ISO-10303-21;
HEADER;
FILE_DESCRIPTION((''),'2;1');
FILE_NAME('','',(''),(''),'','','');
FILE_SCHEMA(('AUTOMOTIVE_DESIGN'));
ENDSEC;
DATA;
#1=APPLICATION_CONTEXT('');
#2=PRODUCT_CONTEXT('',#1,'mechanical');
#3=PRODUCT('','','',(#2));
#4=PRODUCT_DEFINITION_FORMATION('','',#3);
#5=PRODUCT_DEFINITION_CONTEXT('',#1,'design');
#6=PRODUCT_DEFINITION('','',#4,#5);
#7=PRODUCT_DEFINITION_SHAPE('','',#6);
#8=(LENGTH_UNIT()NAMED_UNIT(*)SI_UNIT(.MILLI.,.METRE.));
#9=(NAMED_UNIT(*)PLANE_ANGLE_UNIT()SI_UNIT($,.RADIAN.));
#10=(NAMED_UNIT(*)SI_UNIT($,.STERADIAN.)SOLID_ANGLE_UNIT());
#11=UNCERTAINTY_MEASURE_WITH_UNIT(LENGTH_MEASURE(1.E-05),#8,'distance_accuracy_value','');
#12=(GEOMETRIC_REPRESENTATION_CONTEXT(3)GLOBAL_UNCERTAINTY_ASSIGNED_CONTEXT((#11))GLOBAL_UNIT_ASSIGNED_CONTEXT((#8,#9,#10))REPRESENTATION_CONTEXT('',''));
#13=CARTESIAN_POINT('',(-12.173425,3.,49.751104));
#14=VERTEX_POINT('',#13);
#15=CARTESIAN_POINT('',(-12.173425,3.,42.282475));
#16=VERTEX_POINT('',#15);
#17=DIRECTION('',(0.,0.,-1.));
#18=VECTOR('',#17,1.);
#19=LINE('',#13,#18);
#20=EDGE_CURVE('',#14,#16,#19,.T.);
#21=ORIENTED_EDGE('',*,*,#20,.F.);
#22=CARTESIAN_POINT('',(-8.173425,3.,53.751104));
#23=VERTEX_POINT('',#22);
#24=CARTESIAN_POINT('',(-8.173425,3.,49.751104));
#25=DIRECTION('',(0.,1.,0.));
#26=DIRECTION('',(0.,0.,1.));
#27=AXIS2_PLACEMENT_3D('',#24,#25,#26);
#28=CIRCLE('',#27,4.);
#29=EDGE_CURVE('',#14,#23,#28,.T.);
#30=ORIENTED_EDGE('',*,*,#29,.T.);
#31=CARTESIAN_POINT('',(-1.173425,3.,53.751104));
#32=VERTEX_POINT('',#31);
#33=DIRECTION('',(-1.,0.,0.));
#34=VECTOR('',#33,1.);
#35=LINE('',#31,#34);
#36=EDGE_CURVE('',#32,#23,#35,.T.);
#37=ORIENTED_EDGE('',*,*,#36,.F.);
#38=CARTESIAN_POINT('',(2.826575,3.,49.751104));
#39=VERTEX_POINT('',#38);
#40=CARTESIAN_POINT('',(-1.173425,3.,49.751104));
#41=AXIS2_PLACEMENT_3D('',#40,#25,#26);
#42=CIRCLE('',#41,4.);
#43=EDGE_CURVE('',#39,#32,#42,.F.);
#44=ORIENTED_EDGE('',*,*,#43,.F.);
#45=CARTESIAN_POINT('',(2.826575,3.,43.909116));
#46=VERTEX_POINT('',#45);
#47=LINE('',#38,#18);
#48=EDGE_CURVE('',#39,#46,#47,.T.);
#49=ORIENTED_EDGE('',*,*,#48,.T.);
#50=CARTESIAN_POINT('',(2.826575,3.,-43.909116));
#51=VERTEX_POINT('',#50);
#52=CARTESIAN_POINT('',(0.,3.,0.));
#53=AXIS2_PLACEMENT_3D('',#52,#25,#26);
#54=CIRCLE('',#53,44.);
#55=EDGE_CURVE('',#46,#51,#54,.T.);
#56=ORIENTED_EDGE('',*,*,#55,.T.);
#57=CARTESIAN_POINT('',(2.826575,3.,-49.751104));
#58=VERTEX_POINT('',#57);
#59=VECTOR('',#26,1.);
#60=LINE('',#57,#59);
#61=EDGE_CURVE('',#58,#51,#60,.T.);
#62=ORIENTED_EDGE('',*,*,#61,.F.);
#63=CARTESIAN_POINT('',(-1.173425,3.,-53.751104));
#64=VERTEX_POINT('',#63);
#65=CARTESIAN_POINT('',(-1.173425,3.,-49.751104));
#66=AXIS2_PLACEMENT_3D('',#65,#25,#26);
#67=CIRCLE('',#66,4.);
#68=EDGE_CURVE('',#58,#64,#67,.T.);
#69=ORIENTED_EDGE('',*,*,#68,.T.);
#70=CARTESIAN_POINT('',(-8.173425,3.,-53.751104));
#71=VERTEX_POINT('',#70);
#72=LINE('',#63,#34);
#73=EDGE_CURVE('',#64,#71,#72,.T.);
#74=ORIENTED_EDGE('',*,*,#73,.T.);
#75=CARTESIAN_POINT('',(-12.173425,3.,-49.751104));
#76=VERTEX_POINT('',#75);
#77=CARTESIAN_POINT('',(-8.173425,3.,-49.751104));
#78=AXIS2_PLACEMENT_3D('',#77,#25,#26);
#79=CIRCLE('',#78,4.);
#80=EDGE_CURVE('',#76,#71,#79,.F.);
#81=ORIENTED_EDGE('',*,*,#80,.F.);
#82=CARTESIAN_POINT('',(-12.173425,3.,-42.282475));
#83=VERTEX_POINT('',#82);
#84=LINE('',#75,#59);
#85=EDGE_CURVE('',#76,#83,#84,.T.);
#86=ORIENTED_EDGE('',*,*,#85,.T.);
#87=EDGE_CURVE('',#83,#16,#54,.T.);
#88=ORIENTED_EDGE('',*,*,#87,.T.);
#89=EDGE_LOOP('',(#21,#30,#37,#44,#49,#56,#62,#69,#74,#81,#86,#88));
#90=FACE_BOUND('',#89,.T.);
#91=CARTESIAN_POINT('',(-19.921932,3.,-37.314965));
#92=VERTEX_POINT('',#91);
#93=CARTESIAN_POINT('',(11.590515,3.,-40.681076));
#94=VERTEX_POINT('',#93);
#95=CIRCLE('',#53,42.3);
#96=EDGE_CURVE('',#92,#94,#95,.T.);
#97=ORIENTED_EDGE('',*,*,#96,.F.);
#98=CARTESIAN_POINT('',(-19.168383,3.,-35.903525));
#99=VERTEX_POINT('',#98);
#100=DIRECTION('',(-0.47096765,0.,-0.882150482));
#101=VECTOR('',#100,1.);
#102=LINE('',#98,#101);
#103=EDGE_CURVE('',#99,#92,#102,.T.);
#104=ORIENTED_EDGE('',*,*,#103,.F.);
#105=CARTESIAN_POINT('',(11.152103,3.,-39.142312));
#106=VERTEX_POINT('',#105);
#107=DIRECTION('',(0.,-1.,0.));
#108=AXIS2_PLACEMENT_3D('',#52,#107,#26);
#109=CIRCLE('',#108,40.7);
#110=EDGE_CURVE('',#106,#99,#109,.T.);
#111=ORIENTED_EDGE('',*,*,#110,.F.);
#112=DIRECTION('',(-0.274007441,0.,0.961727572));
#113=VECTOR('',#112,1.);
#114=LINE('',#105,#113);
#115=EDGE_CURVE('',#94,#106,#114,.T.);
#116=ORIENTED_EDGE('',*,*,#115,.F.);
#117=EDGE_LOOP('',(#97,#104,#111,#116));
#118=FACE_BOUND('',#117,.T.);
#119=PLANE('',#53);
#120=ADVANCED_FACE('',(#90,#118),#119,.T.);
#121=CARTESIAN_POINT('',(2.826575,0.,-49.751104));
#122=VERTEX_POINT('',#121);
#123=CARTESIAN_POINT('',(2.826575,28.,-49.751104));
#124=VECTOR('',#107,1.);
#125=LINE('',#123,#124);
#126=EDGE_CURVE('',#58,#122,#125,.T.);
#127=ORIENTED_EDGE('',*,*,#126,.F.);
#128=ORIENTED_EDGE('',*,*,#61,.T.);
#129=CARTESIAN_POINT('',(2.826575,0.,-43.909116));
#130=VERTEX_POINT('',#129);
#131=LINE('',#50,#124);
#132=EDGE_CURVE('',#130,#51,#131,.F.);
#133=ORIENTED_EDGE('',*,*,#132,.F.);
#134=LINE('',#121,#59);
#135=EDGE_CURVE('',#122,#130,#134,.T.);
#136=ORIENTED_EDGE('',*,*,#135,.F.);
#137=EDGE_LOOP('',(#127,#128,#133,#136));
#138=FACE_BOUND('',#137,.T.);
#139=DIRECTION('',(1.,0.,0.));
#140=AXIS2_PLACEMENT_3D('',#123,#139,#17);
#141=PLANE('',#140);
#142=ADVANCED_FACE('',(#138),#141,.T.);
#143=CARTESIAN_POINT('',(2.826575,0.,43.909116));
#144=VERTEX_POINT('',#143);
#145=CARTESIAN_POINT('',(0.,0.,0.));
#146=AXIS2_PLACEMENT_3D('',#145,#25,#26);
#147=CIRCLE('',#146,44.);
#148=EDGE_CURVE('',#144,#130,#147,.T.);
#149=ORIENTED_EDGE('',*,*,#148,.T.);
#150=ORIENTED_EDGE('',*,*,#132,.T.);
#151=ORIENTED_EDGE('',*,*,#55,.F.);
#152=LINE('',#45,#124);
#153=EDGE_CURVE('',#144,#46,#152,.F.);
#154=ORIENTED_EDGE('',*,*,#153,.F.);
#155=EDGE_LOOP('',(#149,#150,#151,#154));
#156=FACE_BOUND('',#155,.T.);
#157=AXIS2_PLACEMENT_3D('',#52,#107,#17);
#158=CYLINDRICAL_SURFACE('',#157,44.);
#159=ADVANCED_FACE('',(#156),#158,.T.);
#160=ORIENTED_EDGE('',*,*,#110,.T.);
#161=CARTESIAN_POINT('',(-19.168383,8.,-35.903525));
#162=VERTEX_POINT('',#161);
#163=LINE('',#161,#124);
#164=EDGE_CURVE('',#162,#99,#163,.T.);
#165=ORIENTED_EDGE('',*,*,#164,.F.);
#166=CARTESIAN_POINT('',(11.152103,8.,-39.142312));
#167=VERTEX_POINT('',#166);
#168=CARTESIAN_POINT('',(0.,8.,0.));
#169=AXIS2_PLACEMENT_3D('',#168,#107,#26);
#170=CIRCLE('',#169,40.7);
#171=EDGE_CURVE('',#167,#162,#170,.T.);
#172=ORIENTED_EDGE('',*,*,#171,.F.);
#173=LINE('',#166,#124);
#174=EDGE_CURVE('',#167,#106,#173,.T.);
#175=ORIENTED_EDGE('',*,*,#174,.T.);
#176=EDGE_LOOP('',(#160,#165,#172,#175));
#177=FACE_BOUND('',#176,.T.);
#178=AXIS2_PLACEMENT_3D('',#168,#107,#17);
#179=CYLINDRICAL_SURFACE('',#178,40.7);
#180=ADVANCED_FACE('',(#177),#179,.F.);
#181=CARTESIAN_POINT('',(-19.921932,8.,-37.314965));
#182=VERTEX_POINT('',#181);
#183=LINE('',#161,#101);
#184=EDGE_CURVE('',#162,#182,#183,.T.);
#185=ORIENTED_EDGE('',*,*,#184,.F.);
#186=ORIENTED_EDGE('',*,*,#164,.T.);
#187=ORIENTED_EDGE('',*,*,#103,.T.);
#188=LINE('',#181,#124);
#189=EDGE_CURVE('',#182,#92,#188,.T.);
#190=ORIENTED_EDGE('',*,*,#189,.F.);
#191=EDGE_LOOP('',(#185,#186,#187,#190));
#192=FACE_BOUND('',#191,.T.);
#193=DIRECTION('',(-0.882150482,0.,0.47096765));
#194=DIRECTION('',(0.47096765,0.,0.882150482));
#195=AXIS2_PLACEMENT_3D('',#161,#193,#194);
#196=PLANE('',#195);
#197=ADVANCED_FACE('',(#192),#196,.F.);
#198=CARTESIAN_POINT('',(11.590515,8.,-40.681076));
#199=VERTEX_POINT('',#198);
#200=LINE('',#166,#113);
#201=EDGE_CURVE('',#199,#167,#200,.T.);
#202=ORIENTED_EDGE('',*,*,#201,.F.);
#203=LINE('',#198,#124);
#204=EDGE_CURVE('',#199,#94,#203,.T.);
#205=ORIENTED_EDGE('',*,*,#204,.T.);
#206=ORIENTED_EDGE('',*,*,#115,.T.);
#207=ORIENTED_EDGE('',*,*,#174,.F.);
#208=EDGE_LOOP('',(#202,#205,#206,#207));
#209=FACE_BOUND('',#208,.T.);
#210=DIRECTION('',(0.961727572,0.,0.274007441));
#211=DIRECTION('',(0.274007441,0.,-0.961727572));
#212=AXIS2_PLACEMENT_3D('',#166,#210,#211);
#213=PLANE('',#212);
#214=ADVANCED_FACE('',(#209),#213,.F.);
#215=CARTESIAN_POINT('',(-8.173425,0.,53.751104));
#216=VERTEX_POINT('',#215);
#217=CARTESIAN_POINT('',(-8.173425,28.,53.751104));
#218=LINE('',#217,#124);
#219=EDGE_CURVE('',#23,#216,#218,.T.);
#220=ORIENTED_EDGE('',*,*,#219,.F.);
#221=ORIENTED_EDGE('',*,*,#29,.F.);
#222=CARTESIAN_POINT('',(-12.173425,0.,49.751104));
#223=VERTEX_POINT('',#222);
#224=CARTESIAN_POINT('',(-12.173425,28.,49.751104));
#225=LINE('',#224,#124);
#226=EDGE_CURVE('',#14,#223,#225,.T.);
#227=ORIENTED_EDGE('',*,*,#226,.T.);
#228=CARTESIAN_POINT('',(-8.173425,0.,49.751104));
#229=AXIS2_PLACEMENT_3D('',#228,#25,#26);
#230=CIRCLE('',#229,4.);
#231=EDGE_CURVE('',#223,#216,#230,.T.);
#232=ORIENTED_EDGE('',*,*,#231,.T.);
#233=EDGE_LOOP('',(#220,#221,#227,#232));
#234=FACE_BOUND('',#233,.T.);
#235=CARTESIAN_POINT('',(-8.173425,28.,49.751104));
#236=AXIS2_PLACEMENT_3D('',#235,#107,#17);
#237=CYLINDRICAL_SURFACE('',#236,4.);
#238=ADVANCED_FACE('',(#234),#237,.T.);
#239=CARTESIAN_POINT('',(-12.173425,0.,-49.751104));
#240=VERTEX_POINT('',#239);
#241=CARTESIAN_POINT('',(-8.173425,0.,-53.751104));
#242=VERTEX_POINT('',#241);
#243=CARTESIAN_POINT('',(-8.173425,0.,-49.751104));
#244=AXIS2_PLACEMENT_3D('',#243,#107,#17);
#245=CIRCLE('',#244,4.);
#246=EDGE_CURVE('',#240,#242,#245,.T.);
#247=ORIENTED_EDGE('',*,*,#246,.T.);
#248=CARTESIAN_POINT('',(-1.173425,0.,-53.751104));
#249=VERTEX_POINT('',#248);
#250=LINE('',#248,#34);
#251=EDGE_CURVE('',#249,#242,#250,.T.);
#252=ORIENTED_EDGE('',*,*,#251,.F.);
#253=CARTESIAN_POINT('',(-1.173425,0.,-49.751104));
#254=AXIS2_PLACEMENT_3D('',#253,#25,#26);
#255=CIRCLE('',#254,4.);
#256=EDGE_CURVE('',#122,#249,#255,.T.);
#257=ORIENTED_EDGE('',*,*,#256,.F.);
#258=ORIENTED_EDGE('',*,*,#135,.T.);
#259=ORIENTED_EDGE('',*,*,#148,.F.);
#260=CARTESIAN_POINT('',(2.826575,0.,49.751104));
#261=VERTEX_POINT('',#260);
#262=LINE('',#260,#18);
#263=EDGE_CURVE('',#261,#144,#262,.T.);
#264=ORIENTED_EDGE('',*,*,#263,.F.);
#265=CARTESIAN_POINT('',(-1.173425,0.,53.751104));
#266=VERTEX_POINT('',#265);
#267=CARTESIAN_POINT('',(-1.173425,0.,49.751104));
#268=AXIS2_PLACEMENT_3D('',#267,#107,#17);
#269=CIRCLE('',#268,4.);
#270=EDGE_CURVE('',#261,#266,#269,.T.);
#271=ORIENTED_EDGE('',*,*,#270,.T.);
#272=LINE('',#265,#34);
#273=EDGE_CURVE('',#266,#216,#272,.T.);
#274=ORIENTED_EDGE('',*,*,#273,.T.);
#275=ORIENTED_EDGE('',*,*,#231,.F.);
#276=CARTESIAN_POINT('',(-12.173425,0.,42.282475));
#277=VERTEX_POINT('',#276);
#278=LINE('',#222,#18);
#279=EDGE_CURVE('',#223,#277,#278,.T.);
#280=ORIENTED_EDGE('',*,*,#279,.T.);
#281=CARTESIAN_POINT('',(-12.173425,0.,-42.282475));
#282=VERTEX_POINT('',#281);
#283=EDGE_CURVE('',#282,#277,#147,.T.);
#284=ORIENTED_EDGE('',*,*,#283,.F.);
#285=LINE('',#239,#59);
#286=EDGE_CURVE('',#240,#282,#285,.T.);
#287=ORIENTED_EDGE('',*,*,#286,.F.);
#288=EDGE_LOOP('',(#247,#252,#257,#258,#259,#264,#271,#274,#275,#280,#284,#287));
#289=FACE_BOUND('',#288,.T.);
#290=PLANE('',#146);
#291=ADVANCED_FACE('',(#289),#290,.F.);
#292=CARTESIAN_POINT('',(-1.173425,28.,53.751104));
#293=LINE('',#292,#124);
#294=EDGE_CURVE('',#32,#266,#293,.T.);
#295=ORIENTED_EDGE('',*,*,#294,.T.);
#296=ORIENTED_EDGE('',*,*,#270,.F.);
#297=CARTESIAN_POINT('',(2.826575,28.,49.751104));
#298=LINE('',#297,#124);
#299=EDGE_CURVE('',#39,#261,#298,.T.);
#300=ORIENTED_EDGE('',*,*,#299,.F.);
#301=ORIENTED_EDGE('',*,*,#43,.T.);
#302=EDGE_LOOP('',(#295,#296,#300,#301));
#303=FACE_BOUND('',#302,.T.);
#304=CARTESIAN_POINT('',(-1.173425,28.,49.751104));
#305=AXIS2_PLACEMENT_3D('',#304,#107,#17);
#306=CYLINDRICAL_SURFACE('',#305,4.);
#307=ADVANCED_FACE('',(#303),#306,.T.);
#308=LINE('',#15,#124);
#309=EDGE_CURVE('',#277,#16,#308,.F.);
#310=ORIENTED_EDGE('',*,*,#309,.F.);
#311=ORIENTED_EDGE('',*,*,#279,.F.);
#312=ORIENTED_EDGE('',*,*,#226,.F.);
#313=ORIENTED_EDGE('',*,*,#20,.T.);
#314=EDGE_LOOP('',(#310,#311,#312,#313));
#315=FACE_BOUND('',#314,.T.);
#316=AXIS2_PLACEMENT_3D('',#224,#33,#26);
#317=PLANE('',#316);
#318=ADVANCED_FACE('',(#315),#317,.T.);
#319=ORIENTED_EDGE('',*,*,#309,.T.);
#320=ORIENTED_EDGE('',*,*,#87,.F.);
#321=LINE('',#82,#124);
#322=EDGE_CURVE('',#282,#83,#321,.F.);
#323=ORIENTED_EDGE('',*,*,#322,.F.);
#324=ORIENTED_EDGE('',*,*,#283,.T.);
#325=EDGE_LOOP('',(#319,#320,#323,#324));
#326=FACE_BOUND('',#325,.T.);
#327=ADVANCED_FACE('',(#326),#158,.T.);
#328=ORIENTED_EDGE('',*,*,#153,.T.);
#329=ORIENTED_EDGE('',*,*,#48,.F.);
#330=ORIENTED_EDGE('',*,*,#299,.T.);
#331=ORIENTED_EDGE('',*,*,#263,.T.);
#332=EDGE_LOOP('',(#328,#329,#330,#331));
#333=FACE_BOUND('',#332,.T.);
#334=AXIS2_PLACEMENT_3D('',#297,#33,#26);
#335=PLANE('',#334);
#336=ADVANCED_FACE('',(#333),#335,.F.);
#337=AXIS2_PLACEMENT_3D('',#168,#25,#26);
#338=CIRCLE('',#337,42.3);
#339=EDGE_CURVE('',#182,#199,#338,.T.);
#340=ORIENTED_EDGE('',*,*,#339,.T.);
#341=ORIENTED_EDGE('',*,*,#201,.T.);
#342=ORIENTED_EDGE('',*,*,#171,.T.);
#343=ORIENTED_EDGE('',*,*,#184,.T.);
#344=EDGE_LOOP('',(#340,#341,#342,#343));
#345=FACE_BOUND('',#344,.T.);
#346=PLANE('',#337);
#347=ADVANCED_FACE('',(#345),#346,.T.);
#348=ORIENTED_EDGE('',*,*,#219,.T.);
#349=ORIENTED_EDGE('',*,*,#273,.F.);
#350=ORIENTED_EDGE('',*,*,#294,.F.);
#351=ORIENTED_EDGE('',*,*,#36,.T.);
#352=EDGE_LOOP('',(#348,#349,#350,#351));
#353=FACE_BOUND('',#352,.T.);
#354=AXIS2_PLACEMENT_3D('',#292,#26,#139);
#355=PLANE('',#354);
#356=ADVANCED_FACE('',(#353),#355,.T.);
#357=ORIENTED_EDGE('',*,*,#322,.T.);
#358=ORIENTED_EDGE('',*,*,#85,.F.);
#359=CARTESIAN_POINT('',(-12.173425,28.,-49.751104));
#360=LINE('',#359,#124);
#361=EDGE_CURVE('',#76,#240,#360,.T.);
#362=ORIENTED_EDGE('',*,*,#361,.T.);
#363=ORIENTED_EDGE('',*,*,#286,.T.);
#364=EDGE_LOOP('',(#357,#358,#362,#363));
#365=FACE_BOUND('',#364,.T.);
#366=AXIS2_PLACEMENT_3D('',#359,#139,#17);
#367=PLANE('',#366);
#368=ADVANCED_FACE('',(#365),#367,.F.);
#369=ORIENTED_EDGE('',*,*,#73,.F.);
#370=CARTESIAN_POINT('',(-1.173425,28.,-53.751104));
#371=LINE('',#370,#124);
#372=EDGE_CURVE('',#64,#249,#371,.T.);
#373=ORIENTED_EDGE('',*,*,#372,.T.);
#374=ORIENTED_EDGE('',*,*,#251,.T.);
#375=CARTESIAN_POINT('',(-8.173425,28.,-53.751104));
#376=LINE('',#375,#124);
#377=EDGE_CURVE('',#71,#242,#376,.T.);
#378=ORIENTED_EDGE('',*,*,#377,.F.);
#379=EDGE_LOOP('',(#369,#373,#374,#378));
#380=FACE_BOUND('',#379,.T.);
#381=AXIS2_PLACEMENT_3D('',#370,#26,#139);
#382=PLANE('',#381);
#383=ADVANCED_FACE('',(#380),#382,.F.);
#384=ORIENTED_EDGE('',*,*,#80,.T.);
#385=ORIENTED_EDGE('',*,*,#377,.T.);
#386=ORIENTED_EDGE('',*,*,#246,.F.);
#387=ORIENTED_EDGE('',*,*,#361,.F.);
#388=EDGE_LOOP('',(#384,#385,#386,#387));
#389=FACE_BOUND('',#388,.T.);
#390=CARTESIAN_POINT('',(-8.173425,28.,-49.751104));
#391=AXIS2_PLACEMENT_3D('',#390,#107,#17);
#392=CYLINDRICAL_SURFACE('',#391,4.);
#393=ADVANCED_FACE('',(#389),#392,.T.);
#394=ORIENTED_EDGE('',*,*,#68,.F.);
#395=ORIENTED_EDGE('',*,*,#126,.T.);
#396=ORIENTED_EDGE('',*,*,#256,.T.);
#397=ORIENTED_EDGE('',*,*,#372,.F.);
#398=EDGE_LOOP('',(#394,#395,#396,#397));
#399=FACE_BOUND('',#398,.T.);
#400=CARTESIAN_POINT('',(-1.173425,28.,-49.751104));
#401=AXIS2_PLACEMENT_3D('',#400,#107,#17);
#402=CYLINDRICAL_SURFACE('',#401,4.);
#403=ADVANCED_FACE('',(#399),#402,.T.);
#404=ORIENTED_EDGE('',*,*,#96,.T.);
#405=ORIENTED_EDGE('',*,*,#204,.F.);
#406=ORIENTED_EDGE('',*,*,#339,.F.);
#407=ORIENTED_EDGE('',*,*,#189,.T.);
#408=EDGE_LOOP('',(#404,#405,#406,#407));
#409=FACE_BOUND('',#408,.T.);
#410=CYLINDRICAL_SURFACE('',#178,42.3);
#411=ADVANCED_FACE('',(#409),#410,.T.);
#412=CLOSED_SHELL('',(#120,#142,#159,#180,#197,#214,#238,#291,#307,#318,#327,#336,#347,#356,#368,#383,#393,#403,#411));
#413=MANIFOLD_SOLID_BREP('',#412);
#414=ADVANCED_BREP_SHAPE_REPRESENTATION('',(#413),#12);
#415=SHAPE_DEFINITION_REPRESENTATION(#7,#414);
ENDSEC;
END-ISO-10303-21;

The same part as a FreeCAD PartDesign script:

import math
import FreeCAD as App
import Part
import Sketcher

V = App.Vector

doc = App.newDocument("Part")
body = doc.addObject("PartDesign::Body", "Body")

# Sketch on XZ plane
sketch1 = doc.addObject("Sketcher::SketchObject", "Sketch")
body.addObject(sketch1)
sketch1.AttachmentSupport = (doc.XZ_Plane, [""])
sketch1.MapMode = "FlatFace"
sketch1.addGeometry(Part.Circle(V(0, 0, 0), V(0, 0, 1), 44), False)
sketch1.addConstraint([
    Sketcher.Constraint("Coincident", 0, 3, -1, 1),
    Sketcher.Constraint("Diameter", 0, 88.0),
])
pad1 = doc.addObject("PartDesign::Pad", "Pad")
body.addObject(pad1)
pad1.Profile = sketch1
pad1.Length = 3
pad1.Reversed = True

# Sketch on XZ plane
sketch2 = doc.addObject("Sketcher::SketchObject", "Sketch001")
body.addObject(sketch2)
sketch2.AttachmentSupport = (doc.XZ_Plane, [""])
sketch2.MapMode = "FlatFace"
sketch2.AttachmentOffset = App.Placement(V(0, 0, -3), App.Rotation())
sketch2.addGeometry([
    Part.LineSegment(V(-19.168383, -35.903525, 0), V(-19.921932, -37.314965, 0)),
    Part.ArcOfCircle(Part.Circle(V(0, 0, 0), V(0, 0, 1), 42.3), math.radians(-74.097127), math.radians(241.902873)),
    Part.LineSegment(V(11.590515, -40.681076, 0), V(11.152103, -39.142312, 0)),
    Part.ArcOfCircle(Part.Circle(V(0, 0, 0), V(0, 0, 1), 40.7), math.radians(-74.097127), math.radians(241.902873)),
], False)
sketch2.addConstraint([
    Sketcher.Constraint("Coincident", 0, 2, 1, 2),
    Sketcher.Constraint("Coincident", 1, 1, 2, 1),
    Sketcher.Constraint("Coincident", 2, 2, 3, 1),
    Sketcher.Constraint("Coincident", 3, 2, 0, 1),
    Sketcher.Constraint("Coincident", 1, 3, -1, 1),
    Sketcher.Constraint("Coincident", 3, 3, -1, 1),
    Sketcher.Constraint("Radius", 1, 42.3),
    Sketcher.Constraint("Radius", 3, 40.7),
    Sketcher.Constraint("DistanceX", 3, 2, 1, 1, 30.758898),
    Sketcher.Constraint("DistanceX", 0, 2, -1, 1, 19.921932),
    Sketcher.Constraint("DistanceY", 1, 1, 0, 2, 3.366111),
    Sketcher.Constraint("DistanceX", 2, 2, 1, 1, 0.438412),
])
pad2 = doc.addObject("PartDesign::Pad", "Pad001")
body.addObject(pad2)
pad2.Profile = sketch2
pad2.Length = 5
pad2.Reversed = True

# Sketch on XZ plane
sketch3 = doc.addObject("Sketcher::SketchObject", "Sketch002")
body.addObject(sketch3)
sketch3.AttachmentSupport = (doc.XZ_Plane, [""])
sketch3.MapMode = "FlatFace"
sketch3.addGeometry([
    Part.LineSegment(V(-8.173425, -53.751104, 0), V(-1.173425, -53.751104, 0)),  # 0
    Part.ArcOfCircle(Part.Circle(V(-1.173425, -49.751104, 0), V(0, 0, 1), 4), math.radians(-90), math.radians(0)),  # 1
    Part.LineSegment(V(2.826575, -49.751104, 0), V(2.826575, -33.751104, 0)),  # 2
    Part.LineSegment(V(2.826575, -33.751104, 0), V(-12.173425, -33.751104, 0)),  # 3
    Part.LineSegment(V(-12.173425, -33.751104, 0), V(-12.173425, -49.751104, 0)),  # 4
    Part.ArcOfCircle(Part.Circle(V(-8.173425, -49.751104, 0), V(0, 0, 1), 4), math.radians(180), math.radians(270)),  # 5
], False)
sketch3.addConstraint([
    Sketcher.Constraint("Tangent", 0, 2, 1, 1),
    Sketcher.Constraint("Tangent", 1, 2, 2, 1),
    Sketcher.Constraint("Coincident", 2, 2, 3, 1),
    Sketcher.Constraint("Coincident", 3, 2, 4, 1),
    Sketcher.Constraint("Tangent", 4, 2, 5, 1),
    Sketcher.Constraint("Tangent", 5, 2, 0, 1),
    Sketcher.Constraint("Horizontal", 0),
    Sketcher.Constraint("Vertical", 2),
    Sketcher.Constraint("Horizontal", 3),
    Sketcher.Constraint("Vertical", 4),
    Sketcher.Constraint("Equal", 1, 5),
    Sketcher.Constraint("Radius", 1, 4.0),
    Sketcher.Constraint("DistanceX", 0, 1, 0, 2, 7.0),
    Sketcher.Constraint("DistanceY", 2, 1, 2, 2, 16.0),
    Sketcher.Constraint("DistanceX", 1, 3, -1, 1, 1.173425),
    Sketcher.Constraint("DistanceY", 1, 3, -1, 1, 49.751104),
])
pad3 = doc.addObject("PartDesign::Pad", "Pad002")
body.addObject(pad3)
pad3.Profile = sketch3
pad3.Length = 3
pad3.Reversed = True
doc.recompute()

mirrored = doc.addObject("PartDesign::Mirrored", "Mirrored")
body.addObject(mirrored)
mirrored.Originals = [pad3]
mirrored.MirrorPlane = (doc.XY_Plane, [""])
body.Tip = mirrored

doc.recompute()
